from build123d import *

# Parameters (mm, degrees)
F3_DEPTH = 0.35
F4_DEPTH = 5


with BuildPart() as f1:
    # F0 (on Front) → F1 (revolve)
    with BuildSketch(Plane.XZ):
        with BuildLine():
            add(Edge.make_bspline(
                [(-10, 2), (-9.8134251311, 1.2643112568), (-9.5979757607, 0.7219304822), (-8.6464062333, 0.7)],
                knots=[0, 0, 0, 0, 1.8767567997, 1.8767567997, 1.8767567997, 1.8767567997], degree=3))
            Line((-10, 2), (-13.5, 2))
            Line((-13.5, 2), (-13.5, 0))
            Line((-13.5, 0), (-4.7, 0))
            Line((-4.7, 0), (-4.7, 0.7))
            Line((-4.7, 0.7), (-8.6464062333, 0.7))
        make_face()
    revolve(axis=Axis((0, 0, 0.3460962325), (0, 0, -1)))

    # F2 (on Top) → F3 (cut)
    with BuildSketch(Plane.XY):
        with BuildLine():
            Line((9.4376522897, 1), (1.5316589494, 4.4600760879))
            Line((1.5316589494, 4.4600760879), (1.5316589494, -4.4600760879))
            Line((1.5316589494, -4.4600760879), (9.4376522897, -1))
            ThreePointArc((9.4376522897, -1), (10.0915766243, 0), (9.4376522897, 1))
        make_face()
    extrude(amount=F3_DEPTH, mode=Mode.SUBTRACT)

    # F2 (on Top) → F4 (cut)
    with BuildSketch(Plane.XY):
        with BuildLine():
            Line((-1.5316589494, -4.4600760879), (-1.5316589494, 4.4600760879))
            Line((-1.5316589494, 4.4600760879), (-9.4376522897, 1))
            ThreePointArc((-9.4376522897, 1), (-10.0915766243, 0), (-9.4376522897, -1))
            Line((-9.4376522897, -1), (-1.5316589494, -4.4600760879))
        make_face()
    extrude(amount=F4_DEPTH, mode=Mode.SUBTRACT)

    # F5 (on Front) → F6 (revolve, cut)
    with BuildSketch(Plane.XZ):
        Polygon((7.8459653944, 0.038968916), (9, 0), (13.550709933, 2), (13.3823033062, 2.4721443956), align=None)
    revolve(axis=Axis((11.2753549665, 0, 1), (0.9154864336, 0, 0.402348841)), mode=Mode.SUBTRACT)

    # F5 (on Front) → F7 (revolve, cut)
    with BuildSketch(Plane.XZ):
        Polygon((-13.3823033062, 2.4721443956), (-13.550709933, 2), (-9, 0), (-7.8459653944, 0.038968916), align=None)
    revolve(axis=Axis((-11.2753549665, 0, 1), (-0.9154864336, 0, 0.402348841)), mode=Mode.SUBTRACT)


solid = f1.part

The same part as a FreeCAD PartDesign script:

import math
import FreeCAD as App
import Part
import Sketcher
from FreeCAD import Vector
Q = App.Units.Quantity


def add_polygon(sketch, points):
    """Adds a closed chain of lines whose ends are joined by coincident constraints."""
    first, n = sketch.GeometryCount, len(points)
    for a, b in zip(points, points[1:] + points[:1]):
        sketch.addGeometry(Part.LineSegment(App.Vector(*a, 0), App.Vector(*b, 0)), False)
    for i in range(n):
        sketch.addConstraint(Sketcher.Constraint("Coincident", first + i, 2, first + (i + 1) % n, 1))

doc = App.newDocument("Part")
body = doc.addObject("PartDesign::Body", "Body")

sketch1 = doc.addObject("Sketcher::SketchObject", "Sketch")
body.addObject(sketch1)
sketch1.AttachmentSupport = (doc.XZ_Plane, [""])
sketch1.MapMode = "FlatFace"
sketch1.addGeometry([
    Part.BSplineCurve([Vector(-10, 2, 0), Vector(-9.813425, 1.264311, 0), Vector(-9.597976, 0.72193, 0), Vector(-8.646406, 0.7, 0)], [4, 4], [0, 1.8767568], False, 3, [1, 1, 1, 1], False),
    Part.LineSegment(Vector(-10, 2, 0), Vector(-13.5, 2, 0)),
    Part.LineSegment(Vector(-13.5, 2, 0), Vector(-13.5, 0, 0)),
    Part.LineSegment(Vector(-13.5, 0, 0), Vector(-4.7, 0, 0)),
    Part.LineSegment(Vector(-4.7, 0, 0), Vector(-4.7, 0.7, 0)),
    Part.LineSegment(Vector(-4.7, 0.7, 0), Vector(-8.646406, 0.7, 0)),
], False)
sketch1.addConstraint([
    Sketcher.Constraint("Block", 0),
    Sketcher.Constraint("Coincident", 0, 1, 1, 1),
    Sketcher.Constraint("Coincident", 1, 2, 2, 1),
    Sketcher.Constraint("Coincident", 2, 2, 3, 1),
    Sketcher.Constraint("Coincident", 3, 2, 4, 1),
    Sketcher.Constraint("Coincident", 4, 2, 5, 1),
    Sketcher.Constraint("Coincident", 5, 2, 0, 2),
    Sketcher.Constraint("Horizontal", 1),
    Sketcher.Constraint("Vertical", 2),
    Sketcher.Constraint("Horizontal", 3),
    Sketcher.Constraint("Vertical", 4),
    Sketcher.Constraint("Horizontal", 5),
    Sketcher.Constraint("PointOnObject", 2, 2, -1),
    Sketcher.Constraint("DistanceX", 1, 2, 1, 1, Q("3.5 mm")),
    Sketcher.Constraint("DistanceX", 3, 1, 3, 2, Q("8.8 mm")),
])
revolution = doc.addObject("PartDesign::Revolution", "Revolution")
body.addObject(revolution)
revolution.Profile = sketch1
revolution.ReferenceAxis = (sketch1, ["V_Axis"])
revolution.Angle = 360

sketch2 = doc.addObject("Sketcher::SketchObject", "Sketch001")
body.addObject(sketch2)
sketch2.AttachmentSupport = (doc.XY_Plane, [""])
sketch2.MapMode = "FlatFace"
sketch2.addGeometry([
    Part.LineSegment(Vector(9.4, 1, 0), Vector(1.5, 4.5, 0)),
    Part.LineSegment(Vector(1.5, 4.5, 0), Vector(1.5, -4.5, 0)),
    Part.LineSegment(Vector(1.5, -4.5, 0), Vector(9.4, -1, 0)),
    Part.ArcOfCircle(Part.Circle(Vector(9, 0, 0), Vector(0, 0, 1), 1.1), math.radians(-66), math.radians(66)),
], False)
sketch2.addConstraint([
    Sketcher.Constraint("Coincident", 0, 2, 1, 1),
    Sketcher.Constraint("Coincident", 1, 2, 2, 1),
    Sketcher.Constraint("Tangent", 2, 2, 3, 1),
    Sketcher.Constraint("Tangent", 3, 2, 0, 1),
    Sketcher.Constraint("Vertical", 1),
    Sketcher.Constraint("Symmetric", 2, 2, 3, 2, -1),
    Sketcher.Constraint("DistanceX", -1, 1, 3, 3, Q("9 mm")),
    Sketcher.Constraint("DistanceY", 2, 2, -1, 1, Q("1 mm")),
    Sketcher.Constraint("Radius", 3, Q("1.091577 mm")),
    Sketcher.Constraint("DistanceY", 1, 2, 1, 1, Q("8.920152 mm")),
])
pocket1 = doc.addObject("PartDesign::Pocket", "Pocket")
body.addObject(pocket1)
pocket1.Profile = sketch2
pocket1.Length = 0.35
pocket1.Reversed = True

sketch3 = doc.addObject("Sketcher::SketchObject", "Sketch002")
body.addObject(sketch3)
sketch3.AttachmentSupport = (doc.XY_Plane, [""])
sketch3.MapMode = "FlatFace"
sketch3.addGeometry([
    Part.LineSegment(Vector(-1.5, -4.5, 0), Vector(-1.5, 4.5, 0)),
    Part.LineSegment(Vector(-1.5, 4.5, 0), Vector(-9.4, 1, 0)),
    Part.ArcOfCircle(Part.Circle(Vector(-9, 0, 0), Vector(0, 0, 1), 1.1), math.radians(114), math.radians(246)),
    Part.LineSegment(Vector(-9.4, -1, 0), Vector(-1.5, -4.5, 0)),
], False)
sketch3.addConstraint([
    Sketcher.Constraint("Coincident", 0, 2, 1, 1),
    Sketcher.Constraint("Tangent", 1, 2, 2, 1),
    Sketcher.Constraint("Tangent", 2, 2, 3, 1),
    Sketcher.Constraint("Coincident", 3, 2, 0, 1),
    Sketcher.Constraint("Vertical", 0),
    Sketcher.Constraint("Symmetric", 1, 2, 2, 2, -1),
    Sketcher.Constraint("DistanceX", 2, 3, -1, 1, Q("9 mm")),
    Sketcher.Constraint("DistanceY", -1, 1, 1, 2, Q("1 mm")),
    Sketcher.Constraint("Radius", 2, Q("1.091577 mm")),
    Sketcher.Constraint("DistanceY", 0, 1, 0, 2, Q("8.920152 mm")),
])
pocket2 = doc.addObject("PartDesign::Pocket", "Pocket001")
body.addObject(pocket2)
pocket2.Profile = sketch3
pocket2.Length = 5
pocket2.Reversed = True

sketch4 = doc.addObject("Sketcher::SketchObject", "Sketch003")
body.addObject(sketch4)
sketch4.AttachmentSupport = (doc.XZ_Plane, [""])
sketch4.MapMode = "FlatFace"
add_polygon(sketch4, [(7.8, 0), (9, 0), (13.6, 2), (13.4, 2.5)])
sketch4.addGeometry(Part.LineSegment(Vector(8, -0.4, 0), Vector(13.6, 2, 0)), True)
sketch4.addConstraint([
    Sketcher.Constraint("PointOnObject", 0, 2, -1),
    Sketcher.Constraint("Parallel", 1, 3),
    Sketcher.Constraint("Parallel", 3, 4),
    Sketcher.Constraint("Equal", 3, 4),
    Sketcher.Constraint("DistanceX", -1, 1, 0, 2, Q("9 mm")),
    Sketcher.Constraint("DistanceY", -1, 1, 1, 2, Q("2 mm")),
    Sketcher.Constraint("DistanceY", -1, 1, 4, 2, Q("2.014401 mm")),
    Sketcher.Constraint("Distance", 1, Q("4.970811 mm")),
    Sketcher.Constraint("Distance", 2, Q("0.501279 mm")),
    Sketcher.Constraint("DistanceY", -1, 1, 3, 2, Q("0.038969 mm")),
    Sketcher.Constraint("DistanceX", -1, 1, 4, 1, Q("8.04714 mm")),
    Sketcher.Constraint("DistanceY", 4, 1, 2, 2, Q("2.890919 mm")),
])
groove = doc.addObject("PartDesign::Groove", "Groove")
body.addObject(groove)
groove.Profile = sketch4
groove.ReferenceAxis = (sketch4, ["Axis0"])
groove.Angle = 360

sketch5 = doc.addObject("Sketcher::SketchObject", "Sketch004")
body.addObject(sketch5)
sketch5.AttachmentSupport = (doc.XZ_Plane, [""])
sketch5.MapMode = "FlatFace"
add_polygon(sketch5, [(-13.4, 2.5), (-13.6, 2), (-9, 0), (-7.8, 0)])
sketch5.addGeometry(Part.LineSegment(Vector(-8, -0.4, 0), Vector(-13.6, 2, 0)), True)
sketch5.addConstraint([
    Sketcher.Constraint("PointOnObject", 1, 2, -1),
    Sketcher.Constraint("Parallel", 1, 3),
    Sketcher.Constraint("Parallel", 3, 4),
    Sketcher.Constraint("Equal", 3, 4),
    Sketcher.Constraint("DistanceY", -1, 1, 0, 2, Q("2 mm")),
    Sketcher.Constraint("DistanceX", 1, 2, -1, 1, Q("9 mm")),
    Sketcher.Constraint("DistanceY", -1, 1, 4, 2, Q("2.014401 mm")),
    Sketcher.Constraint("Distance", 0, Q("0.501279 mm")),
    Sketcher.Constraint("Distance", 1, Q("4.970811 mm")),
    Sketcher.Constraint("DistanceY", -1, 1, 2, 2, Q("0.038969 mm")),
    Sketcher.Constraint("DistanceX", 4, 1, -1, 1, Q("8.04714 mm")),
    Sketcher.Constraint("DistanceY", 4, 1, 3, 2, Q("2.890919 mm")),
])
groove2 = doc.addObject("PartDesign::Groove", "Groove001")
body.addObject(groove2)
groove2.Profile = sketch5
groove2.ReferenceAxis = (sketch5, ["Axis0"])
groove2.Angle = 360

doc.recompute()
